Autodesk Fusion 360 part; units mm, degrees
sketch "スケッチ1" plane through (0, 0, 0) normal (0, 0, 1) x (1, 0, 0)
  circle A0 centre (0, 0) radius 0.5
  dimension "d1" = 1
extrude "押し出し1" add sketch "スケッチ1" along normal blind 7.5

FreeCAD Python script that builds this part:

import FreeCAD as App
import Part
import Sketcher

V = App.Vector

doc = App.newDocument("Part")
body = doc.addObject("PartDesign::Body", "Body")

sketch1 = body.newObject("Sketcher::SketchObject", "Sketch")
sketch1.AttachmentSupport = (doc.getObject("XY_Plane"), [""])
sketch1.MapMode = "FlatFace"
sketch1.addGeometry(Part.Circle(V(0, 0, 0), V(0, 0, 1), 0.5), False)
sketch1.addConstraint(Sketcher.Constraint("Coincident", 0, 3, -1, 1))
sketch1.addConstraint(Sketcher.Constraint("Diameter", 0, 1.0))
pad1 = body.newObject("PartDesign::Pad", "Pad")
pad1.Profile = sketch1
pad1.Length = 7.5

doc.recompute()
